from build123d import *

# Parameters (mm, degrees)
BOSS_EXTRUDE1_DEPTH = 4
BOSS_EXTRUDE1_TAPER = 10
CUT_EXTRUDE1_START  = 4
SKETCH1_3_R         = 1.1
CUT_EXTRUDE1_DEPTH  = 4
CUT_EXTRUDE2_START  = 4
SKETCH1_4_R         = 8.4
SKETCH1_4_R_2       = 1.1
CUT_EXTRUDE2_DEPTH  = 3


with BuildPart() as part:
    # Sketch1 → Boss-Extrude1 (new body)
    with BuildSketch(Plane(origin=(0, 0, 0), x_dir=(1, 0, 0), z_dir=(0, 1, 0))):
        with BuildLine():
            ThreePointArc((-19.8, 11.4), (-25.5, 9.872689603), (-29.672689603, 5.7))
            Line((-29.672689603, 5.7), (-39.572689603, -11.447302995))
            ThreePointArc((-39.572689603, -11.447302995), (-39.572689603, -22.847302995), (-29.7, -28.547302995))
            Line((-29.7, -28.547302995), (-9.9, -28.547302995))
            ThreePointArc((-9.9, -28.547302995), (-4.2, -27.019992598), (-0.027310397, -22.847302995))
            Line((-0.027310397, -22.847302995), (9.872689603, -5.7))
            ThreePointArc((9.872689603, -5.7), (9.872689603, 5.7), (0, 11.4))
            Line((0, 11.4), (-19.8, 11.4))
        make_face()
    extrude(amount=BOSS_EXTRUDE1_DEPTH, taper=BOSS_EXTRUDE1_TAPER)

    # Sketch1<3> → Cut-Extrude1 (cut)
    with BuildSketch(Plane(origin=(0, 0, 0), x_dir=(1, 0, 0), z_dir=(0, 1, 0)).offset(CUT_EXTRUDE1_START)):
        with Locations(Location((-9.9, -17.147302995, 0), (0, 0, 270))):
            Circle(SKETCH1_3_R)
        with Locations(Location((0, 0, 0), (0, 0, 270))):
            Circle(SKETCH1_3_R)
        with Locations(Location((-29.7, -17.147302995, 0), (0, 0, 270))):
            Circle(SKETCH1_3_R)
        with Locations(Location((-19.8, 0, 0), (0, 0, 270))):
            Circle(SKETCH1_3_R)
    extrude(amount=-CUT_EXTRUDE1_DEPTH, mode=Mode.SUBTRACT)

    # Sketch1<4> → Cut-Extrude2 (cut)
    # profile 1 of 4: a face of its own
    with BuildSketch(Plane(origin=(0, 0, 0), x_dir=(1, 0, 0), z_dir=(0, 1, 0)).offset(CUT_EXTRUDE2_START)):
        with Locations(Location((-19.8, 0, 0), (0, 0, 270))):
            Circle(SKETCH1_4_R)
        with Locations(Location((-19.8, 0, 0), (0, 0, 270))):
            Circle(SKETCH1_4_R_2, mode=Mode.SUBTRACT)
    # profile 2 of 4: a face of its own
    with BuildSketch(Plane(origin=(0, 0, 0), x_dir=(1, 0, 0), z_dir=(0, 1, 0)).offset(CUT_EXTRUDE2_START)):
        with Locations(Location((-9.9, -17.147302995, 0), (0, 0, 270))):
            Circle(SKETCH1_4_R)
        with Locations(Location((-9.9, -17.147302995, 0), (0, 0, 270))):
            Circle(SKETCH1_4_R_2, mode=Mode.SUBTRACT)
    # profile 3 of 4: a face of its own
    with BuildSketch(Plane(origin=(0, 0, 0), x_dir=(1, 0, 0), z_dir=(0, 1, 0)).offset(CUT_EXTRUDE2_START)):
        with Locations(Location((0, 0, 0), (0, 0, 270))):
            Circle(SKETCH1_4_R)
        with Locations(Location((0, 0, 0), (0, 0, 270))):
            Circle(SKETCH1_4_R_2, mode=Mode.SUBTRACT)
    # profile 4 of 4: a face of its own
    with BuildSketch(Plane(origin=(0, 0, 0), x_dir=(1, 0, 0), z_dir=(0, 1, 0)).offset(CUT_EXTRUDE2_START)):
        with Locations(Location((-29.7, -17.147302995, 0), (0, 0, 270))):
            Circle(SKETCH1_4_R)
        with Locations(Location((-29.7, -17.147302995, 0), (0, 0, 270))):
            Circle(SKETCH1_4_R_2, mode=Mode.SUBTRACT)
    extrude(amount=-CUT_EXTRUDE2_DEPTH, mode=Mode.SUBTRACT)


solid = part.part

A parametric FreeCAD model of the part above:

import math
import FreeCAD as App
import Part
import Sketcher
from FreeCAD import Vector
Q = App.Units.Quantity

doc = App.newDocument("Part")
body = doc.addObject("PartDesign::Body", "Body")

# Sketch on XZ plane
sketch1 = body.newObject("Sketcher::SketchObject", "Sketch")
sketch1.AttachmentSupport = (doc.getObject("XZ_Plane"), [""])
sketch1.MapMode = "FlatFace"
sketch1.addGeometry(Part.ArcOfCircle(Part.Circle(Vector(-20, 0, 0), Vector(0, 0, 1), 11), math.radians(-150), math.radians(-90)), False)
sketch1.addGeometry(Part.LineSegment(Vector(-30, -6, 0), Vector(-40, 11, 0)), False)
sketch1.addGeometry(Part.ArcOfCircle(Part.Circle(Vector(-30, 17, 0), Vector(0, 0, 1), 11), math.radians(90), math.radians(210)), False)
sketch1.addGeometry(Part.LineSegment(Vector(-30, 29, 0), Vector(-10, 29, 0)), False)
sketch1.addGeometry(Part.ArcOfCircle(Part.Circle(Vector(-10, 17, 0), Vector(0, 0, 1), 11), math.radians(30), math.radians(90)), False)
sketch1.addGeometry(Part.LineSegment(Vector(0, 23, 0), Vector(10, 6, 0)), False)
sketch1.addGeometry(Part.ArcOfCircle(Part.Circle(Vector(0, 0, 0), Vector(0, 0, 1), 11), math.radians(-90), math.radians(30)), False)
sketch1.addGeometry(Part.LineSegment(Vector(0, -11, 0), Vector(-20, -11, 0)), False)
sketch1.addConstraint(Sketcher.Constraint("Tangent", 0, 1, 1, 1))
sketch1.addConstraint(Sketcher.Constraint("Tangent", 1, 2, 2, 2))
sketch1.addConstraint(Sketcher.Constraint("Tangent", 2, 1, 3, 1))
sketch1.addConstraint(Sketcher.Constraint("Tangent", 3, 2, 4, 2))
sketch1.addConstraint(Sketcher.Constraint("Tangent", 4, 1, 5, 1))
sketch1.addConstraint(Sketcher.Constraint("Tangent", 5, 2, 6, 2))
sketch1.addConstraint(Sketcher.Constraint("Tangent", 6, 1, 7, 1))
sketch1.addConstraint(Sketcher.Constraint("Tangent", 7, 2, 0, 2))
sketch1.addConstraint(Sketcher.Constraint("Horizontal", 3))
sketch1.addConstraint(Sketcher.Constraint("Horizontal", 7))
sketch1.addConstraint(Sketcher.Constraint("Coincident", 6, 3, -1, 1))
sketch1.addConstraint(Sketcher.Constraint("Equal", 0, 2))
sketch1.addConstraint(Sketcher.Constraint("Equal", 2, 4))
sketch1.addConstraint(Sketcher.Constraint("Equal", 4, 6))
sketch1.addConstraint(Sketcher.Constraint("Parallel", 1, 5))
sketch1.addConstraint(Sketcher.Constraint("Radius", 0, Q("11.4 mm")))
sketch1.addConstraint(Sketcher.Constraint("Angle", 1, Q("120 deg")))
sketch1.addConstraint(Sketcher.Constraint("DistanceX", 3, 1, 3, 2, Q("19.8 mm")))
sketch1.addConstraint(Sketcher.Constraint("Distance", 1, Q("19.8 mm")))
pad1 = body.newObject("PartDesign::Pad", "Pad")
pad1.Profile = sketch1
pad1.Length = 4
pad1.Reversed = True
pad1.TaperAngle = -10

# Sketch on XZ plane
sketch2 = body.newObject("Sketcher::SketchObject", "Sketch001")
sketch2.AttachmentSupport = (doc.getObject("XZ_Plane"), [""])
sketch2.MapMode = "FlatFace"
sketch2.AttachmentOffset = App.Placement(Vector(0, 0, -4), App.Rotation())
sketch2.addGeometry(Part.Circle(Vector(-9.9, 17.1, 0), Vector(0, 0, 1), 1.1), False)
sketch2.addGeometry(Part.Circle(Vector(0, 0, 0), Vector(0, 0, 1), 1.1), False)
sketch2.addGeometry(Part.Circle(Vector(-29.7, 17.1, 0), Vector(0, 0, 1), 1.1), False)
sketch2.addGeometry(Part.Circle(Vector(-19.8, 0, 0), Vector(0, 0, 1), 1.1), False)
sketch2.addConstraint(Sketcher.Constraint("Coincident", 1, 3, -1, 1))
sketch2.addConstraint(Sketcher.Constraint("Equal", 0, 1))
sketch2.addConstraint(Sketcher.Constraint("Equal", 1, 2))
sketch2.addConstraint(Sketcher.Constraint("Equal", 2, 3))
sketch2.addConstraint(Sketcher.Constraint("PointOnObject", 3, 3, -1))
sketch2.addConstraint(Sketcher.Constraint("Horizontal", 0, 3, 2, 3))
sketch2.addConstraint(Sketcher.Constraint("Diameter", 0, Q("2.2 mm")))
sketch2.addConstraint(Sketcher.Constraint("DistanceX", 0, 3, -1, 1, Q("9.9 mm")))
sketch2.addConstraint(Sketcher.Constraint("DistanceX", 2, 3, -1, 1, Q("29.7 mm")))
sketch2.addConstraint(Sketcher.Constraint("DistanceX", 3, 3, -1, 1, Q("19.8 mm")))
sketch2.addConstraint(Sketcher.Constraint("DistanceY", -1, 1, 0, 3, Q("17.147303 mm")))
pocket1 = body.newObject("PartDesign::Pocket", "Pocket")
pocket1.Profile = sketch2
pocket1.Length = 4
pocket1.Reversed = True

# Sketch on XZ plane
sketch3 = body.newObject("Sketcher::SketchObject", "Sketch002")
sketch3.AttachmentSupport = (doc.getObject("XZ_Plane"), [""])
sketch3.MapMode = "FlatFace"
sketch3.AttachmentOffset = App.Placement(Vector(0, 0, -4), App.Rotation())
sketch3.addGeometry(Part.Circle(Vector(-19.8, 0, 0), Vector(0, 0, 1), 8.4), False)
sketch3.addGeometry(Part.Circle(Vector(-19.8, 0, 0), Vector(0, 0, 1), 1.1), False)
sketch3.addGeometry(Part.Circle(Vector(-9.9, 17.1, 0), Vector(0, 0, 1), 8.4), False)
sketch3.addGeometry(Part.Circle(Vector(-9.9, 17.1, 0), Vector(0, 0, 1), 1.1), False)
sketch3.addGeometry(Part.Circle(Vector(0, 0, 0), Vector(0, 0, 1), 8.4), False)
sketch3.addGeometry(Part.Circle(Vector(0, 0, 0), Vector(0, 0, 1), 1.1), False)
sketch3.addGeometry(Part.Circle(Vector(-29.7, 17.1, 0), Vector(0, 0, 1), 8.4), False)
sketch3.addGeometry(Part.Circle(Vector(-29.7, 17.1, 0), Vector(0, 0, 1), 1.1), False)
sketch3.addConstraint(Sketcher.Constraint("Coincident", 4, 3, -1, 1))
sketch3.addConstraint(Sketcher.Constraint("Coincident", 5, 3, -1, 1))
sketch3.addConstraint(Sketcher.Constraint("Coincident", 1, 3, 0, 3))
sketch3.addConstraint(Sketcher.Constraint("Coincident", 3, 3, 2, 3))
sketch3.addConstraint(Sketcher.Constraint("Coincident", 7, 3, 6, 3))
sketch3.addConstraint(Sketcher.Constraint("Equal", 0, 2))
sketch3.addConstraint(Sketcher.Constraint("Equal", 1, 3))
sketch3.addConstraint(Sketcher.Constraint("Equal", 2, 4))
sketch3.addConstraint(Sketcher.Constraint("Equal", 3, 5))
sketch3.addConstraint(Sketcher.Constraint("Equal", 4, 6))
sketch3.addConstraint(Sketcher.Constraint("Equal", 5, 7))
sketch3.addConstraint(Sketcher.Constraint("PointOnObject", 0, 3, -1))
sketch3.addConstraint(Sketcher.Constraint("Horizontal", 3, 3, 6, 3))
sketch3.addConstraint(Sketcher.Constraint("Diameter", 0, Q("16.8 mm")))
sketch3.addConstraint(Sketcher.Constraint("Diameter", 1, Q("2.2 mm")))
sketch3.addConstraint(Sketcher.Constraint("DistanceX", 0, 3, -1, 1, Q("19.8 mm")))
sketch3.addConstraint(Sketcher.Constraint("DistanceX", 2, 3, -1, 1, Q("9.9 mm")))
sketch3.addConstraint(Sketcher.Constraint("DistanceX", 6, 3, -1, 1, Q("29.7 mm")))
sketch3.addConstraint(Sketcher.Constraint("DistanceY", -1, 1, 2, 3, Q("17.147303 mm")))
pocket2 = body.newObject("PartDesign::Pocket", "Pocket001")
pocket2.Profile = sketch3
pocket2.Length = 3
pocket2.Reversed = True

doc.recompute()
